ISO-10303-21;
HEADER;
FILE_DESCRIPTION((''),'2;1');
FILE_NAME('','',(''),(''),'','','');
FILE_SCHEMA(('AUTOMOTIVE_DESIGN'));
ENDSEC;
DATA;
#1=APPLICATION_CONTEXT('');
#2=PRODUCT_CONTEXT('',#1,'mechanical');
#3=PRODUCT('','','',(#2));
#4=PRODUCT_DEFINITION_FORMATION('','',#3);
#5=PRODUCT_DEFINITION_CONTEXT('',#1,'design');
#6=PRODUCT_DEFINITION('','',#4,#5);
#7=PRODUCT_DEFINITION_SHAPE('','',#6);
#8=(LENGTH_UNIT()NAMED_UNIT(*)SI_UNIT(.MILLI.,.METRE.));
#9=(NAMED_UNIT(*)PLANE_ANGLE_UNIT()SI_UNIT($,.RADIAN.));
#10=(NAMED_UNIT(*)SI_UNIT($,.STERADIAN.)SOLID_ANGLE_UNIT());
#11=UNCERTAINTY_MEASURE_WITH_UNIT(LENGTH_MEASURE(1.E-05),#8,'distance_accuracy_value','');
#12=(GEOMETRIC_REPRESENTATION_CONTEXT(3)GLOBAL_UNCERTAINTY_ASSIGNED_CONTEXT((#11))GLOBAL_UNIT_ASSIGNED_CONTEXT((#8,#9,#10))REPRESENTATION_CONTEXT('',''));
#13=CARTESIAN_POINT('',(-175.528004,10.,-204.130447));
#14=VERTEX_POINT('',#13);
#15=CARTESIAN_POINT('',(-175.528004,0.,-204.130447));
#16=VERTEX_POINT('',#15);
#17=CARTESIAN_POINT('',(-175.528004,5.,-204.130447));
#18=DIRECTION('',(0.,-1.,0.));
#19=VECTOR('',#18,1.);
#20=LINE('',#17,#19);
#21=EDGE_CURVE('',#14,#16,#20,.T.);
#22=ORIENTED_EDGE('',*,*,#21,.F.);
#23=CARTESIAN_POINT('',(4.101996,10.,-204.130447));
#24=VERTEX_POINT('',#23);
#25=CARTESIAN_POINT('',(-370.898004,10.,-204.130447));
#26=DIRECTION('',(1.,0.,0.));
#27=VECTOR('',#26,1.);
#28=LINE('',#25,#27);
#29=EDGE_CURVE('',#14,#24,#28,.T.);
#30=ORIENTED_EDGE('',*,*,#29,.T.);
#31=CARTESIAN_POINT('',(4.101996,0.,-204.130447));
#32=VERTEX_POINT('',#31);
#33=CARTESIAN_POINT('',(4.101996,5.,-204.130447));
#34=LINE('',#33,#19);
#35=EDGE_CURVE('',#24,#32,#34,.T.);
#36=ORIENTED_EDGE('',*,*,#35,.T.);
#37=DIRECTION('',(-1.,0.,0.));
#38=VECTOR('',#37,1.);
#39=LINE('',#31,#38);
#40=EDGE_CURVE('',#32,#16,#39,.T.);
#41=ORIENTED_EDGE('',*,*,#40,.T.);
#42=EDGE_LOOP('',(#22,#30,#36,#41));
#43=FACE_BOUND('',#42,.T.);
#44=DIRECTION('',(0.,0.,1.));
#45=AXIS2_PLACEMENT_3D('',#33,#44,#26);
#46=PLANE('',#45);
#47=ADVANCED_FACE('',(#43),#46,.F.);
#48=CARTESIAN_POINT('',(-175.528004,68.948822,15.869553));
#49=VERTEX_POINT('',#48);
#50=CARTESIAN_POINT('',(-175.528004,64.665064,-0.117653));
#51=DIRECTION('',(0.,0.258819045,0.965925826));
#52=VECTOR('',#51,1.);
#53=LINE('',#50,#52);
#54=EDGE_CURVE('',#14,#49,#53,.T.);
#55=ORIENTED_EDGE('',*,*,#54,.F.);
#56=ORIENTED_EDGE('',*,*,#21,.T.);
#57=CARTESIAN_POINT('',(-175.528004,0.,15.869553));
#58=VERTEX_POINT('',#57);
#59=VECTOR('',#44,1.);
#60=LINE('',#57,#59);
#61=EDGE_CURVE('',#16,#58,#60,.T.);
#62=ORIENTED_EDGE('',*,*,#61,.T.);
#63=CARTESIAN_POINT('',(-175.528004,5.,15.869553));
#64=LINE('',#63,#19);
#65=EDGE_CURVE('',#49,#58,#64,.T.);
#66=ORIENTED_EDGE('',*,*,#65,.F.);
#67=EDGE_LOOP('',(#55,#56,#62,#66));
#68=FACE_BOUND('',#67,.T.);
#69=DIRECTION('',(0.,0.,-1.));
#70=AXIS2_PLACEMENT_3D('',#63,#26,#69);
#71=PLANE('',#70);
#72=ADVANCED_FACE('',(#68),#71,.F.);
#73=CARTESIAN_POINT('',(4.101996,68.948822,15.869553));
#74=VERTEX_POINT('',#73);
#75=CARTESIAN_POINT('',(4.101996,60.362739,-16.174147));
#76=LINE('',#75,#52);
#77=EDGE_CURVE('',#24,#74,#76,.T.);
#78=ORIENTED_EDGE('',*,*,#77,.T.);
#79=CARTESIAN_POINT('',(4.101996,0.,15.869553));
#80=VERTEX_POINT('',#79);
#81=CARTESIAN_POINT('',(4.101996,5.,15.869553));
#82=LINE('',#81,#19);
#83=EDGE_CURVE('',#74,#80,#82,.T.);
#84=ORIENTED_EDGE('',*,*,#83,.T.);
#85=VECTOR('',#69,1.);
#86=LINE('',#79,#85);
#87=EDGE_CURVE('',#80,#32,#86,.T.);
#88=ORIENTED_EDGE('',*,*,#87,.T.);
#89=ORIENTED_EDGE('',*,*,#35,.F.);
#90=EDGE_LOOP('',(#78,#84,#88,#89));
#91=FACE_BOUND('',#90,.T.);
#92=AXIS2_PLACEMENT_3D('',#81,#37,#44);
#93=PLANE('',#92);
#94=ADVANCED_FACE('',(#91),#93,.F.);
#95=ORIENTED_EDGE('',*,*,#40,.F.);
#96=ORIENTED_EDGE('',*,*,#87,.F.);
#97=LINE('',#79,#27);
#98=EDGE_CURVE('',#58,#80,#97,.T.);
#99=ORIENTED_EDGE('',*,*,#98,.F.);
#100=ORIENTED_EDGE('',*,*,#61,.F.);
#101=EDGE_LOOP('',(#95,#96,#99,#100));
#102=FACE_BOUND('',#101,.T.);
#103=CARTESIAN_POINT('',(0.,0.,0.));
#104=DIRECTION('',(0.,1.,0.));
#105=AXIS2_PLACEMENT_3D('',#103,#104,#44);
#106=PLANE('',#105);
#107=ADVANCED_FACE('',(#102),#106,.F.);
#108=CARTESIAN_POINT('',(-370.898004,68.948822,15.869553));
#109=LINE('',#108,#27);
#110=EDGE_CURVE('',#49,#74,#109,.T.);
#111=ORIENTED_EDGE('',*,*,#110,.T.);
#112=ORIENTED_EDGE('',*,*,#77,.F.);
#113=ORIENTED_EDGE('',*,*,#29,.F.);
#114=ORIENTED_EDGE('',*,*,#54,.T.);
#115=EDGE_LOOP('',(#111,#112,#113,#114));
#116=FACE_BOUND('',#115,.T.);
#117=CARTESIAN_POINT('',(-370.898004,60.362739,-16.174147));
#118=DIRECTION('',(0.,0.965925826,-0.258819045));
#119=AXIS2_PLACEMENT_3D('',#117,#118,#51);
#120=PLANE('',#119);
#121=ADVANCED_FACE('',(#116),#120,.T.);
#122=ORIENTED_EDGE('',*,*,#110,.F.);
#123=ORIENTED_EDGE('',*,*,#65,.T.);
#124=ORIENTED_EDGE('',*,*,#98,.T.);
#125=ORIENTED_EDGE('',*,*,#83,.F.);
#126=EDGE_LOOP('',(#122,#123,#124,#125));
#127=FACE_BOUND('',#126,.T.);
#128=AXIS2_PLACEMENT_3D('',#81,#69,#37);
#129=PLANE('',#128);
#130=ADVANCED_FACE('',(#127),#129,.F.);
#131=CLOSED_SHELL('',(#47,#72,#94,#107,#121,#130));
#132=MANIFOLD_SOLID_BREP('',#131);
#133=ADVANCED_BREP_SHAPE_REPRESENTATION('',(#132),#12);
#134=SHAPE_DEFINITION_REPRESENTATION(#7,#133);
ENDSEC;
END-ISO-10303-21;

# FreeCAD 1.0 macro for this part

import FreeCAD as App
import Part
import Sketcher
from FreeCAD import Vector
Q = App.Units.Quantity

doc = App.newDocument("Part")
body = doc.addObject("PartDesign::Body", "Body")

# Sketch on XZ plane
sketch1 = doc.addObject("Sketcher::SketchObject", "Sketch")
body.addObject(sketch1)
sketch1.AttachmentSupport = (doc.XZ_Plane, [""])
sketch1.MapMode = "FlatFace"
sketch1.addGeometry([
    Part.LineSegment(Vector(-176, -204, 0), Vector(-176, 16, 0)),
    Part.LineSegment(Vector(-176, 16, 0), Vector(4, 16, 0)),
    Part.LineSegment(Vector(4, 16, 0), Vector(4, -204, 0)),
    Part.LineSegment(Vector(4, -204, 0), Vector(-176, -204, 0)),
], False)
sketch1.addConstraint([
    Sketcher.Constraint("Coincident", 0, 2, 1, 1),
    Sketcher.Constraint("Coincident", 1, 2, 2, 1),
    Sketcher.Constraint("Coincident", 2, 2, 3, 1),
    Sketcher.Constraint("Coincident", 3, 2, 0, 1),
    Sketcher.Constraint("Vertical", 0),
    Sketcher.Constraint("Horizontal", 1),
    Sketcher.Constraint("Vertical", 2),
    Sketcher.Constraint("Horizontal", 3),
    Sketcher.Constraint("DistanceY", 0, 1, 0, 2, Q("220 mm")),
    Sketcher.Constraint("DistanceX", 1, 1, 1, 2, Q("179.63 mm")),
    Sketcher.Constraint("DistanceX", 0, 2, -1, 1, Q("175.528004 mm")),
    Sketcher.Constraint("DistanceY", -1, 1, 0, 2, Q("15.869553 mm")),
])
pad1 = doc.addObject("PartDesign::Pad", "Pad")
body.addObject(pad1)
pad1.Profile = sketch1
pad1.Length = 5
pad1.Reversed = True

# Sketch on XZ plane
sketch2 = doc.addObject("Sketcher::SketchObject", "Sketch001")
body.addObject(sketch2)
sketch2.AttachmentSupport = (doc.XZ_Plane, [""])
sketch2.MapMode = "FlatFace"
sketch2.AttachmentOffset = App.Placement(Vector(0, 0, -5), App.Rotation())
sketch2.addGeometry([
    Part.LineSegment(Vector(-176, -204, 0), Vector(-176, 16, 0)),
    Part.LineSegment(Vector(-176, 16, 0), Vector(4, 16, 0)),
    Part.LineSegment(Vector(4, 16, 0), Vector(4, -204, 0)),
    Part.LineSegment(Vector(4, -204, 0), Vector(-176, -204, 0)),
], False)
sketch2.addConstraint([
    Sketcher.Constraint("Coincident", 0, 2, 1, 1),
    Sketcher.Constraint("Coincident", 1, 2, 2, 1),
    Sketcher.Constraint("Coincident", 2, 2, 3, 1),
    Sketcher.Constraint("Coincident", 3, 2, 0, 1),
    Sketcher.Constraint("Vertical", 0),
    Sketcher.Constraint("Horizontal", 1),
    Sketcher.Constraint("Vertical", 2),
    Sketcher.Constraint("Horizontal", 3),
    Sketcher.Constraint("DistanceY", 0, 1, 0, 2, Q("220 mm")),
    Sketcher.Constraint("DistanceX", 1, 1, 1, 2, Q("179.63 mm")),
    Sketcher.Constraint("DistanceX", 0, 2, -1, 1, Q("175.528004 mm")),
    Sketcher.Constraint("DistanceY", -1, 1, 0, 2, Q("15.869553 mm")),
])
pad2 = doc.addObject("PartDesign::Pad", "Pad001")
body.addObject(pad2)
pad2.Profile = sketch2
pad2.Length = 103
pad2.Reversed = True

# Sketch on YZ plane
sketch3 = doc.addObject("Sketcher::SketchObject", "Sketch002")
body.addObject(sketch3)
sketch3.AttachmentSupport = (doc.YZ_Plane, [""])
sketch3.MapMode = "FlatFace"
sketch3.AttachmentOffset = App.Placement(Vector(0, 0, 4.101996), App.Rotation())
sketch3.addGeometry([
    Part.LineSegment(Vector(66, 6, 0), Vector(10, -204, 0)),  # 0
    Part.LineSegment(Vector(10, -204, 0), Vector(108, -204, 0)),  # 1
    Part.LineSegment(Vector(108, -204, 0), Vector(108, 16, 0)),  # 2
    Part.LineSegment(Vector(108, 16, 0), Vector(69, 16, 0)),  # 3
    Part.LineSegment(Vector(69, 16, 0), Vector(66, 6, 0)),  # 4
], False)
sketch3.addConstraint([
    Sketcher.Constraint("Coincident", 0, 2, 1, 1),
    Sketcher.Constraint("Coincident", 1, 2, 2, 1),
    Sketcher.Constraint("Coincident", 2, 2, 3, 1),
    Sketcher.Constraint("Coincident", 3, 2, 4, 1),
    Sketcher.Constraint("Coincident", 4, 2, 0, 1),
    Sketcher.Constraint("Horizontal", 1),
    Sketcher.Constraint("Vertical", 2),
    Sketcher.Constraint("Horizontal", 3),
    Sketcher.Constraint("Parallel", 0, 4),
    Sketcher.Constraint("DistanceX", 1, 1, 1, 2, Q("98 mm")),
    Sketcher.Constraint("DistanceY", 2, 1, 2, 2, Q("220 mm")),
    Sketcher.Constraint("Angle", 0, Q("-105 deg")),
    Sketcher.Constraint("DistanceX", -1, 1, 0, 2, Q("10 mm")),
    Sketcher.Constraint("DistanceY", -1, 1, 4, 2, Q("5.78933 mm")),
    Sketcher.Constraint("Distance", 0, Q("217.324945 mm")),
])
pocket1 = doc.addObject("PartDesign::Pocket", "Pocket")
body.addObject(pocket1)
pocket1.Profile = sketch3
pocket1.Length = 375

doc.recompute()
